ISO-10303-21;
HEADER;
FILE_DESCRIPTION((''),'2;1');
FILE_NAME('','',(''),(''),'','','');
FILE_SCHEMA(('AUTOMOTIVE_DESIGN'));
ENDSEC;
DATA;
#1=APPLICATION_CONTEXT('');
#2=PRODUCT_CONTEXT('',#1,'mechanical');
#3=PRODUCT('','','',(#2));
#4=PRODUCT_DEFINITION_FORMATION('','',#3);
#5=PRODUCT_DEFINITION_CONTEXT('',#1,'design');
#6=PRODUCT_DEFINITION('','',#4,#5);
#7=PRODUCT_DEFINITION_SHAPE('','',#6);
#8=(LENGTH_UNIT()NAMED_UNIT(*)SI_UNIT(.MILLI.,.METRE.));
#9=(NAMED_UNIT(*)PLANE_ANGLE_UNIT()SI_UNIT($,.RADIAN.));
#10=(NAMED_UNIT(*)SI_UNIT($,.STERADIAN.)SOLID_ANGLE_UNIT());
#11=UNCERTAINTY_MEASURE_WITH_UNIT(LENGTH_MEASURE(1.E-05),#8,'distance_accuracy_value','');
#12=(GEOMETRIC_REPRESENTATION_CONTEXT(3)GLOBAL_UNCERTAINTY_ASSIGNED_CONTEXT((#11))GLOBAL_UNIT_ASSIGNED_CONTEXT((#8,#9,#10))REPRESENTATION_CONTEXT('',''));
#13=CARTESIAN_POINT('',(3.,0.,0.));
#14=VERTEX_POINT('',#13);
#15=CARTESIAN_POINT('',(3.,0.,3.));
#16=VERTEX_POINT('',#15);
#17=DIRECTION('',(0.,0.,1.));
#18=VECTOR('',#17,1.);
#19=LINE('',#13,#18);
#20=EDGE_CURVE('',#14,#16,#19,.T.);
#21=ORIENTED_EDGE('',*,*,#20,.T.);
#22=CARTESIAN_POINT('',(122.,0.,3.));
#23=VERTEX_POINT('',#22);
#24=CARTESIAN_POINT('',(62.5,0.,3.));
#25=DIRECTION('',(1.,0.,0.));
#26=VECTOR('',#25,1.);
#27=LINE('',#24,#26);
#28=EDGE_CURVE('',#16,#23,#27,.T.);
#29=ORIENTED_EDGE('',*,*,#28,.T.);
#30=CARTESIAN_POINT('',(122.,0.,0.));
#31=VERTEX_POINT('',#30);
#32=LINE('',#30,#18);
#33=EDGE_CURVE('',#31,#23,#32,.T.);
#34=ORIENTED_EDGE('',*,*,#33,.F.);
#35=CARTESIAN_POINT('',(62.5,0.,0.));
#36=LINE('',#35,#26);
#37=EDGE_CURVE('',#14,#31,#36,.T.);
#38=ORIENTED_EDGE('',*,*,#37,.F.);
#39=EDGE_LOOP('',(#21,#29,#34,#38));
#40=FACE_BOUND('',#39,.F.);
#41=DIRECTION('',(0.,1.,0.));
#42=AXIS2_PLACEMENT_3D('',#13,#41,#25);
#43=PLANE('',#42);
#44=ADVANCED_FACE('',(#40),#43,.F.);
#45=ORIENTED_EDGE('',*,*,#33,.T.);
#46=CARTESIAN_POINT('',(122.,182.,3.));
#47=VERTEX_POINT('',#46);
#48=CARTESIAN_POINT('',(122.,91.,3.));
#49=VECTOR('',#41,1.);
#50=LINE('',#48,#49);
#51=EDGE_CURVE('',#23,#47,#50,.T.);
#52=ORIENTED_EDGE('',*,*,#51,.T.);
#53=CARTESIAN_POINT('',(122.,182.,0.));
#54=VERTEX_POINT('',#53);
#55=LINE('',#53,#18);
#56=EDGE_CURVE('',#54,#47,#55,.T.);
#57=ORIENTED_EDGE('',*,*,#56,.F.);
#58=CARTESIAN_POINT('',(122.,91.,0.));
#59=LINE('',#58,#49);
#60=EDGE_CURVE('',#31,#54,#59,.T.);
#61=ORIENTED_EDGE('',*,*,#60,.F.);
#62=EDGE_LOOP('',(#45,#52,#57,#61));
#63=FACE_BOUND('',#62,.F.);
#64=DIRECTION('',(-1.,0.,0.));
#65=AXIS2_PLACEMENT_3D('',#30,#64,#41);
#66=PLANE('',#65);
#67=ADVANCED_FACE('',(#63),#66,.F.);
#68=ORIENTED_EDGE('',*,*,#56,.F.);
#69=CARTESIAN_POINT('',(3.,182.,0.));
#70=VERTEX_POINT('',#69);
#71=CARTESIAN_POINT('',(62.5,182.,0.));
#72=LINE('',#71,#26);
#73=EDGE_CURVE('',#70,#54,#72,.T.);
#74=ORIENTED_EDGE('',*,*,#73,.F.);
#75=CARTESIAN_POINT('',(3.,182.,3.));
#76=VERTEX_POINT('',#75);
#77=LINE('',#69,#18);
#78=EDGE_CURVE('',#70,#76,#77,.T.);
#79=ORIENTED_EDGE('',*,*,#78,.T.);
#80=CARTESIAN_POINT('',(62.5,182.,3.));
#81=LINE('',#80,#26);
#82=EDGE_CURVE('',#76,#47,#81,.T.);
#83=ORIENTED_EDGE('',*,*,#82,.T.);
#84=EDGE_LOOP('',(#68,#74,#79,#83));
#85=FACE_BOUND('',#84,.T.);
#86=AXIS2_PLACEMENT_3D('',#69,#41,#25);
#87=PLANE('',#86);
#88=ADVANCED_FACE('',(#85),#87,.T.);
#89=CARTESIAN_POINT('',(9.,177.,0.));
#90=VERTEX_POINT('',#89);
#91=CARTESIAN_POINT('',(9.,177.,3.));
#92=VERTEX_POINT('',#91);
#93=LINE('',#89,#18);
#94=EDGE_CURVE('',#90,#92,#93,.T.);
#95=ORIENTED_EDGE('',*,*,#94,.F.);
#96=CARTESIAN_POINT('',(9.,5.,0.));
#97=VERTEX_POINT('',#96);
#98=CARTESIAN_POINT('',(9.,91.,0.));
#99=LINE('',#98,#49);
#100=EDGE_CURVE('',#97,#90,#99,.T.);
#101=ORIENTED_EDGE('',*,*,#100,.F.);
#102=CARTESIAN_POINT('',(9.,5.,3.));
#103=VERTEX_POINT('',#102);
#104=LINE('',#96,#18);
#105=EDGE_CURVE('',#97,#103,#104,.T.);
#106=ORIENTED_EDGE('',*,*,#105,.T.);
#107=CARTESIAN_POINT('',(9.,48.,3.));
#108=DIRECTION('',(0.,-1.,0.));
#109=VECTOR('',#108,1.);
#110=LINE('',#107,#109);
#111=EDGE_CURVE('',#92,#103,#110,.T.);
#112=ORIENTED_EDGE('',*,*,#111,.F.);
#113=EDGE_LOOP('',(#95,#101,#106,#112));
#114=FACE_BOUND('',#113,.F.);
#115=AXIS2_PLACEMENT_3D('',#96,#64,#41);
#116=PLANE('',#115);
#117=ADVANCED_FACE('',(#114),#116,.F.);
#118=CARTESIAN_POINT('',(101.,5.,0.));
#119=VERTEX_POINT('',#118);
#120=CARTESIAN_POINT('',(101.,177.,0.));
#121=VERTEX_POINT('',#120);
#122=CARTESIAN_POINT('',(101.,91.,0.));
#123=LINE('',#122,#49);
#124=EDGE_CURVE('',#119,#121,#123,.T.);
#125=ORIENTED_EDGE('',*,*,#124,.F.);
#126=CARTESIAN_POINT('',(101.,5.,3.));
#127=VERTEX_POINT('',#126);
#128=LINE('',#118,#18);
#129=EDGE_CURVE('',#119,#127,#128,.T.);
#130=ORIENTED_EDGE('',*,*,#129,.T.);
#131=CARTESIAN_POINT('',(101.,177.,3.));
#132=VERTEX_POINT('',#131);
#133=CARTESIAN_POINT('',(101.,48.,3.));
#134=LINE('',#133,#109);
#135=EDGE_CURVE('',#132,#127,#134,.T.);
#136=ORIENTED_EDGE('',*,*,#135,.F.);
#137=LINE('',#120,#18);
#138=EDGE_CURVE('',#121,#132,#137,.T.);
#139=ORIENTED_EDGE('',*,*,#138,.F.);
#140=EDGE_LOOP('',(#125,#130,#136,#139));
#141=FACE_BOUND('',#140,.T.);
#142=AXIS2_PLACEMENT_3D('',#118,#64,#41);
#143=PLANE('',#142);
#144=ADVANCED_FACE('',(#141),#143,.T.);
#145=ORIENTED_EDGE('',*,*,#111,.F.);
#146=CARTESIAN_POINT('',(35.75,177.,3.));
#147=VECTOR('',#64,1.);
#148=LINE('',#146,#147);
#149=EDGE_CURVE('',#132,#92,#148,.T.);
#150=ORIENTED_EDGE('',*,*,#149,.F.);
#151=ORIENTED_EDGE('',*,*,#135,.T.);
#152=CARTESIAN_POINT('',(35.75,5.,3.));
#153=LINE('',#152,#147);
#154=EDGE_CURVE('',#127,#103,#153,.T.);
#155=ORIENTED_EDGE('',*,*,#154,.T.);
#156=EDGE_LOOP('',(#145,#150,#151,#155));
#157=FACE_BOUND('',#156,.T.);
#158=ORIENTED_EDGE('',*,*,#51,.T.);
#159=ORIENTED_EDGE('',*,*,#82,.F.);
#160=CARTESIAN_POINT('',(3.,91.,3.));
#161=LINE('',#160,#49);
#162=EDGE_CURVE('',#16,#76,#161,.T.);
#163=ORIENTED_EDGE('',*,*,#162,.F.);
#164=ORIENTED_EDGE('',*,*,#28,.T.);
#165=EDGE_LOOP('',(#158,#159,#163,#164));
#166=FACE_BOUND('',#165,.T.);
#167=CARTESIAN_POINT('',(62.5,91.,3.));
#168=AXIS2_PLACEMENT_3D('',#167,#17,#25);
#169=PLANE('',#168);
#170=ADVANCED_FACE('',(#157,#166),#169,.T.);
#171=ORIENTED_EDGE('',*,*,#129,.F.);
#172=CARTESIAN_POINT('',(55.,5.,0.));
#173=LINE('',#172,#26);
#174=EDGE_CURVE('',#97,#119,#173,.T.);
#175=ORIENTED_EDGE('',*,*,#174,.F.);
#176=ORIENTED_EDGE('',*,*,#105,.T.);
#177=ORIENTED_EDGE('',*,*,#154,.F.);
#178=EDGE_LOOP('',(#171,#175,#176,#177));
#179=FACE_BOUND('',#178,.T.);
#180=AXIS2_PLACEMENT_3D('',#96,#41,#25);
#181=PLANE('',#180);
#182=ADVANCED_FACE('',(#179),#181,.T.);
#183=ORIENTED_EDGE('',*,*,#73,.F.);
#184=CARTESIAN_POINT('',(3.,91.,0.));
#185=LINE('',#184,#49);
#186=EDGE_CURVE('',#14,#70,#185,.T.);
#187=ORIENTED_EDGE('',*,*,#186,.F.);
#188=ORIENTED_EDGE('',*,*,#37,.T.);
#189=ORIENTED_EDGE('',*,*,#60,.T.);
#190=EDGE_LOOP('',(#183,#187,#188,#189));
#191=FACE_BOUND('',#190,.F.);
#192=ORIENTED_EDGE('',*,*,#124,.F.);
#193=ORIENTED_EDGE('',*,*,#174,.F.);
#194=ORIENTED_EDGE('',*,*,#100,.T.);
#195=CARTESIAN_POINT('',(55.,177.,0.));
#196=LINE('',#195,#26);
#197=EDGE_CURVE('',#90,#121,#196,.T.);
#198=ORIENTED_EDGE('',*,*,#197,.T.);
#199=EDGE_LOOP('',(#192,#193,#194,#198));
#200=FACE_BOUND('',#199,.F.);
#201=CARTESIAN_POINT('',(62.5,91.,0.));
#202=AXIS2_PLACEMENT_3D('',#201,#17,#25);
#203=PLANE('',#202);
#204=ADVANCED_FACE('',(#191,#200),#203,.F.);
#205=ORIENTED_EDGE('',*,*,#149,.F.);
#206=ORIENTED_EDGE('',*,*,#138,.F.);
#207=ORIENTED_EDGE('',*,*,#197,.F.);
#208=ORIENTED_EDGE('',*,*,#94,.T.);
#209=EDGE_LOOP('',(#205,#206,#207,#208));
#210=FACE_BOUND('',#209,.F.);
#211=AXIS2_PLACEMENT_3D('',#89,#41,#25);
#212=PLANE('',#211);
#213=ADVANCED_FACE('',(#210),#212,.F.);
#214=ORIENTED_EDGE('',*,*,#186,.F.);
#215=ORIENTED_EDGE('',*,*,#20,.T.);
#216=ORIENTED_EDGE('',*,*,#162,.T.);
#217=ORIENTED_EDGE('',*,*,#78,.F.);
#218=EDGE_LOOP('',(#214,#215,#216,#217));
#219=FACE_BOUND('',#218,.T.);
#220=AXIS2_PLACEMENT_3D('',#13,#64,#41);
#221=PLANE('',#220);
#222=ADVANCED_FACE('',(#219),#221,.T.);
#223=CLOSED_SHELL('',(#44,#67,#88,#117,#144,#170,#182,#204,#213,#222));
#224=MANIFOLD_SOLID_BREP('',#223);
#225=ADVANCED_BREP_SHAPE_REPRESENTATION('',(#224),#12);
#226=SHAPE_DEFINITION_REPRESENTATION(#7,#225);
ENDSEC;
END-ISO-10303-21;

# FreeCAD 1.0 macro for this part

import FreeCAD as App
import Part
import Sketcher

V = App.Vector
Q = App.Units.Quantity

doc = App.newDocument("Part")
body = doc.addObject("PartDesign::Body", "Body")

sketch1 = body.newObject("Sketcher::SketchObject", "Sketch")
sketch1.AttachmentSupport = (doc.getObject("XY_Plane"), [""])
sketch1.MapMode = "FlatFace"
sketch1.addGeometry(Part.LineSegment(V(9, 177, 0), V(9, 5, 0)), False)
sketch1.addGeometry(Part.LineSegment(V(9, 5, 0), V(101, 5, 0)), False)
sketch1.addGeometry(Part.LineSegment(V(101, 5, 0), V(101, 177, 0)), False)
sketch1.addGeometry(Part.LineSegment(V(101, 177, 0), V(9, 177, 0)), False)
sketch1.addConstraint(Sketcher.Constraint("Coincident", 0, 2, 1, 1))
sketch1.addConstraint(Sketcher.Constraint("Coincident", 1, 2, 2, 1))
sketch1.addConstraint(Sketcher.Constraint("Coincident", 2, 2, 3, 1))
sketch1.addConstraint(Sketcher.Constraint("Coincident", 3, 2, 0, 1))
sketch1.addConstraint(Sketcher.Constraint("Vertical", 0))
sketch1.addConstraint(Sketcher.Constraint("Horizontal", 1))
sketch1.addConstraint(Sketcher.Constraint("Vertical", 2))
sketch1.addConstraint(Sketcher.Constraint("Horizontal", 3))
sketch1.addConstraint(Sketcher.Constraint("DistanceX", 1, 1, 1, 2, Q("92 mm")))
sketch1.addConstraint(Sketcher.Constraint("DistanceY", 0, 2, 0, 1, Q("172 mm")))
sketch1.addConstraint(Sketcher.Constraint("DistanceX", -1, 1, 0, 2, Q("9 mm")))
sketch1.addConstraint(Sketcher.Constraint("DistanceY", -1, 1, 0, 2, Q("5 mm")))
pad1 = body.newObject("PartDesign::Pad", "Pad")
pad1.Profile = sketch1
pad1.Length = 10
body2 = doc.addObject("PartDesign::Body", "Body001")

sketch2 = body2.newObject("Sketcher::SketchObject", "Sketch001")
sketch2.AttachmentSupport = (doc.getObject("XY_Plane001"), [""])
sketch2.MapMode = "FlatFace"
sketch2.addGeometry(Part.LineSegment(V(3, 182, 0), V(3, 0, 0)), False)
sketch2.addGeometry(Part.LineSegment(V(3, 0, 0), V(122, 0, 0)), False)
sketch2.addGeometry(Part.LineSegment(V(122, 0, 0), V(122, 182, 0)), False)
sketch2.addGeometry(Part.LineSegment(V(122, 182, 0), V(3, 182, 0)), False)
sketch2.addConstraint(Sketcher.Constraint("Coincident", 0, 2, 1, 1))
sketch2.addConstraint(Sketcher.Constraint("Coincident", 1, 2, 2, 1))
sketch2.addConstraint(Sketcher.Constraint("Coincident", 2, 2, 3, 1))
sketch2.addConstraint(Sketcher.Constraint("Coincident", 3, 2, 0, 1))
sketch2.addConstraint(Sketcher.Constraint("Vertical", 0))
sketch2.addConstraint(Sketcher.Constraint("Horizontal", 1))
sketch2.addConstraint(Sketcher.Constraint("Vertical", 2))
sketch2.addConstraint(Sketcher.Constraint("Horizontal", 3))
sketch2.addConstraint(Sketcher.Constraint("PointOnObject", 0, 2, -1))
sketch2.addConstraint(Sketcher.Constraint("DistanceX", 1, 1, 1, 2, Q("119 mm")))
sketch2.addConstraint(Sketcher.Constraint("DistanceY", 0, 2, 0, 1, Q("182 mm")))
sketch2.addConstraint(Sketcher.Constraint("DistanceX", -1, 1, 0, 2, Q("3 mm")))
pad2 = body2.newObject("PartDesign::Pad", "Pad001")
pad2.Profile = sketch2
pad2.Length = 3
doc.recompute()

boolean = body2.newObject("PartDesign::Boolean", "Boolean")
boolean.Type = "Cut"
boolean.addObjects([body])

doc.recompute()
